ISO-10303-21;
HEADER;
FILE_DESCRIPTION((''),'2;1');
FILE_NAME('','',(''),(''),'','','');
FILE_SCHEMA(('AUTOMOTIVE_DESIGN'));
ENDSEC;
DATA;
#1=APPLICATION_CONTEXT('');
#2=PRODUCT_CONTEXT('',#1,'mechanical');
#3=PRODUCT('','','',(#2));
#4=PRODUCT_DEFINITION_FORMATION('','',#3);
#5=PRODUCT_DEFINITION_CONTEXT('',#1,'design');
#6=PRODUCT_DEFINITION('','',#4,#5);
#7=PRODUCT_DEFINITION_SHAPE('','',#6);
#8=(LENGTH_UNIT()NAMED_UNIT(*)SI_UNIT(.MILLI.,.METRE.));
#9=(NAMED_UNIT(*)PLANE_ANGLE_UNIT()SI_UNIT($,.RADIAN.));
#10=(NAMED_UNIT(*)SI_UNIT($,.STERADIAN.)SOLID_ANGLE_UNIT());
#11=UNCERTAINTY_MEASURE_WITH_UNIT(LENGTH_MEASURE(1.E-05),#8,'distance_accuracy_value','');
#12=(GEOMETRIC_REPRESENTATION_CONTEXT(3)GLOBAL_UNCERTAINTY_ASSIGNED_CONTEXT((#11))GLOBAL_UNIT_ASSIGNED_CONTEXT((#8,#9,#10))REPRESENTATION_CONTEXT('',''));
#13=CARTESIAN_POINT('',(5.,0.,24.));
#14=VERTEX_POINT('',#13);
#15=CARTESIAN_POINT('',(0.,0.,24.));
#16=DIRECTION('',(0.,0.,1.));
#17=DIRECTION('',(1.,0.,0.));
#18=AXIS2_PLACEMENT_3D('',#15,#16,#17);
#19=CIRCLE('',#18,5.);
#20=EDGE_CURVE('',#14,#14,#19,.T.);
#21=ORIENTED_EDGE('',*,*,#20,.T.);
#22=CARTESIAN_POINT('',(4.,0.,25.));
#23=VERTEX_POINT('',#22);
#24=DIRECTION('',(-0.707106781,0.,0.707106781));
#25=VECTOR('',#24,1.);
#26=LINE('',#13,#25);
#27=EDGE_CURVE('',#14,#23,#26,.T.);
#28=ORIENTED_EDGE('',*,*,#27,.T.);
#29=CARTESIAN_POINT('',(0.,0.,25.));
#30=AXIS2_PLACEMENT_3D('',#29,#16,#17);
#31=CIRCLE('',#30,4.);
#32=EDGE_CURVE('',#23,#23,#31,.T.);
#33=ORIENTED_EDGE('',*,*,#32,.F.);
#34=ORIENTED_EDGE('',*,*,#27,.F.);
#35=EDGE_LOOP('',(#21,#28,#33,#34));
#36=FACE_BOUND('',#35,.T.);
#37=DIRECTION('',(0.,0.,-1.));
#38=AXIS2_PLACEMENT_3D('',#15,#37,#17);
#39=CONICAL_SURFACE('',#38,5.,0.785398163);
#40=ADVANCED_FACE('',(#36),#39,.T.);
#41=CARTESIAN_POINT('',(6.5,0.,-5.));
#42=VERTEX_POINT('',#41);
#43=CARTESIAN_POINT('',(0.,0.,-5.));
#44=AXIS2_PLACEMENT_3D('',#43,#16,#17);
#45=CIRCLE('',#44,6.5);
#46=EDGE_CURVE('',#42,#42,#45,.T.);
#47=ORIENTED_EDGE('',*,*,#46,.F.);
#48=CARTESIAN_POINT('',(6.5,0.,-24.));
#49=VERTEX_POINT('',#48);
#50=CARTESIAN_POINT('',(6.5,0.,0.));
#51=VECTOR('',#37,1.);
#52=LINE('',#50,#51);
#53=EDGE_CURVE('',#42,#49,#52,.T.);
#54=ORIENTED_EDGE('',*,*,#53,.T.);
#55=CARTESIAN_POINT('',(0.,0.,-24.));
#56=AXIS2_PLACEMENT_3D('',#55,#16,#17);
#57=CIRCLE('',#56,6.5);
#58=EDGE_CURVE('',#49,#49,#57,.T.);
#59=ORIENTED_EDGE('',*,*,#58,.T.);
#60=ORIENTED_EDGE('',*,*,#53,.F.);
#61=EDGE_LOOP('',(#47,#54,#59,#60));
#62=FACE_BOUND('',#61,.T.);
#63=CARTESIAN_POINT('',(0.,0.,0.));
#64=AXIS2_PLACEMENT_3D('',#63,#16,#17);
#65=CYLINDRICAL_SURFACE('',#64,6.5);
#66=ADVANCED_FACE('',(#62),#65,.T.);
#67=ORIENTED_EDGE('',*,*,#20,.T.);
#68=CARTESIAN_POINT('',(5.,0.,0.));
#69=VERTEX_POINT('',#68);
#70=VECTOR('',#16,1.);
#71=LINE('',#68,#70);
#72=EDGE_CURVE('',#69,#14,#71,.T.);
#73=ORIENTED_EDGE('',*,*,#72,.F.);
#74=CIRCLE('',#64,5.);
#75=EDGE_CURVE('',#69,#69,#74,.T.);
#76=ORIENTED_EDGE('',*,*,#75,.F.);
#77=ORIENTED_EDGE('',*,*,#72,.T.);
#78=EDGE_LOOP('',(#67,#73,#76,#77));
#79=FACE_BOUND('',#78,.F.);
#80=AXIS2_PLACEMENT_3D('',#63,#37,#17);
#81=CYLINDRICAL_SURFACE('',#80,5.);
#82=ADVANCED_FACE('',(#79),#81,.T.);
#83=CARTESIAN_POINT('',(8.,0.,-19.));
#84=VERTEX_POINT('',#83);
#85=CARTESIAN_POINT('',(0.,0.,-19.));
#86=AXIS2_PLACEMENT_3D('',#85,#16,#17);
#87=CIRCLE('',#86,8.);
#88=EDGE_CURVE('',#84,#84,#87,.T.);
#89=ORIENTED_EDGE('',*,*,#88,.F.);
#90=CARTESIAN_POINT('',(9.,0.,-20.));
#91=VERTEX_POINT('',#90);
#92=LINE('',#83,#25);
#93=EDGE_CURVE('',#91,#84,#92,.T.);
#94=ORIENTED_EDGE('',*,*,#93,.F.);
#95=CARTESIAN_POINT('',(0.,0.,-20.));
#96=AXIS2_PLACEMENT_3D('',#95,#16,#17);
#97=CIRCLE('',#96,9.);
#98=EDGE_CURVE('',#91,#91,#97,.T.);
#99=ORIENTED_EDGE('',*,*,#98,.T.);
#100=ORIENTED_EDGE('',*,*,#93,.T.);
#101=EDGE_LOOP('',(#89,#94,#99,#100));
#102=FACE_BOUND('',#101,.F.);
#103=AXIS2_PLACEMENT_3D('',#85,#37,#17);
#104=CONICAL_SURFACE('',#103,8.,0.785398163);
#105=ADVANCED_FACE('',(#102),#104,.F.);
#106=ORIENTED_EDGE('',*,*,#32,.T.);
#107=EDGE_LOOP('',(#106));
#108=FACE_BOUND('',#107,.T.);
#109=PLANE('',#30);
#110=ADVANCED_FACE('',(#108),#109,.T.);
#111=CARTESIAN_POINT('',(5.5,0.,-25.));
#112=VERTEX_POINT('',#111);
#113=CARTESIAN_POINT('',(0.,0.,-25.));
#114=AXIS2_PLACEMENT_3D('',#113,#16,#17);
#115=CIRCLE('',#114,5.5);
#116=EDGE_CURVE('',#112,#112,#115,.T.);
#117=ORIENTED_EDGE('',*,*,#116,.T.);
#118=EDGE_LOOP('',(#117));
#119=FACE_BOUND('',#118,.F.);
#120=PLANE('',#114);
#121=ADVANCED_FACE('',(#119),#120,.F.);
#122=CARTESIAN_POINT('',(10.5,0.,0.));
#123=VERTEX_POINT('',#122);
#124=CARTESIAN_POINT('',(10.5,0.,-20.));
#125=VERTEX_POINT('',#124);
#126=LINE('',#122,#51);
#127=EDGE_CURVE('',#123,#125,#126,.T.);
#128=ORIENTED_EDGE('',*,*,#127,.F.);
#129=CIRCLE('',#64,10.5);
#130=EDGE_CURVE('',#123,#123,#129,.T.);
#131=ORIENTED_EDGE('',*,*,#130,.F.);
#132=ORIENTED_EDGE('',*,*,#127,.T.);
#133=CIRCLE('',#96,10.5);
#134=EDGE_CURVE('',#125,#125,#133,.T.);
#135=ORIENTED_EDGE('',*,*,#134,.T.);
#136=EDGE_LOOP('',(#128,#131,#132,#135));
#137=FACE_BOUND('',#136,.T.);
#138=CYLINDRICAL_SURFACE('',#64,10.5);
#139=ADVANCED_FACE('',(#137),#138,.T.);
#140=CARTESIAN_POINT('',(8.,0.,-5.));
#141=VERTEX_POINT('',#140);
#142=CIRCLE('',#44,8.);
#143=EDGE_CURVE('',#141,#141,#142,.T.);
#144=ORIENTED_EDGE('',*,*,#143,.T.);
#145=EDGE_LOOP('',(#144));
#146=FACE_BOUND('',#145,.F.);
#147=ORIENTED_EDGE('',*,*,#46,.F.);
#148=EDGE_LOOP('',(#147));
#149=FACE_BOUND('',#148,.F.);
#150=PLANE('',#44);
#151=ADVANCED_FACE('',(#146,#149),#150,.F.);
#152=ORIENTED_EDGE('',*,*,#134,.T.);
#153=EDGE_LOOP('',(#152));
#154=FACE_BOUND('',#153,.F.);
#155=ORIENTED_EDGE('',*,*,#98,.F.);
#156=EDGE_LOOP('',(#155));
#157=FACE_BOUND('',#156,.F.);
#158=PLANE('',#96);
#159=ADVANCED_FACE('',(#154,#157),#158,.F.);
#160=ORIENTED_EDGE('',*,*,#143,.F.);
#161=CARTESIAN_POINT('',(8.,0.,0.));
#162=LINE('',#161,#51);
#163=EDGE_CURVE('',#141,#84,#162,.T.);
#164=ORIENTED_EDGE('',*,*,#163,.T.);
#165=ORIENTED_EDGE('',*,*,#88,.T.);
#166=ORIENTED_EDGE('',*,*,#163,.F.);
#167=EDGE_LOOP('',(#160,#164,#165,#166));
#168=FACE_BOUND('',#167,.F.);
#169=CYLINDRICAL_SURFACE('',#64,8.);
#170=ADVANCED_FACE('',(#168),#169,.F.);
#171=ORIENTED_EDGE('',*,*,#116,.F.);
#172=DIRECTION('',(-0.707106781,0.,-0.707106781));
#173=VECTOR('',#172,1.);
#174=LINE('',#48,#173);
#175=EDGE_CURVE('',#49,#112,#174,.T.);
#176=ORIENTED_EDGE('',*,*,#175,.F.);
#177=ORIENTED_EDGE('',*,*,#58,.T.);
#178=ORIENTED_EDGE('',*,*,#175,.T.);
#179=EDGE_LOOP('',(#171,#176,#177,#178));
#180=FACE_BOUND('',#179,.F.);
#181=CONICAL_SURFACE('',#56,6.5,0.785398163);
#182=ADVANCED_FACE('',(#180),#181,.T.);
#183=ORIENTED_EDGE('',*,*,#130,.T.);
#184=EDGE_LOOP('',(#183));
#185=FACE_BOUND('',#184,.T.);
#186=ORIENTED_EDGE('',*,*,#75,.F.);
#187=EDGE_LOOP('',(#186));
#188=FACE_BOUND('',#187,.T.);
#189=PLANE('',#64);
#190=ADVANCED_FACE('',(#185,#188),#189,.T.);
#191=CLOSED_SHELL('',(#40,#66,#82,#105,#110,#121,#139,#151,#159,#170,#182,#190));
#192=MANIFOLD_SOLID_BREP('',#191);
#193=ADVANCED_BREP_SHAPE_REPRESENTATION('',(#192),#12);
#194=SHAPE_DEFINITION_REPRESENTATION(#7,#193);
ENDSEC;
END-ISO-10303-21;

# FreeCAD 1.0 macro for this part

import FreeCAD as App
import Part
import Sketcher


def edges_at(feature, points):
    """Names of the edges that pass closest to the given points."""
    edges = feature.Shape.Edges
    near = lambda p: min(range(len(edges)), key=lambda i: edges[i].distToShape(Part.Vertex(*p))[0])
    return sorted({f"Edge{near(p) + 1}" for p in points})

doc = App.newDocument("Part")
params = doc.addObject("Spreadsheet::Sheet", "Params")
for row, (alias, value) in enumerate([
    ("sketch1_diameter", "10 mm"),
    ("pad1_length", "25 mm"),
    ("sketch2_diameter", "13 mm"),
    ("pad2_length", "25 mm"),
    ("sketch3_diameter", "16 mm"),
    ("sketch3_diameter2", "13 mm"),
    ("pad3_length", "5 mm"),
    ("sketch4_diameter", "21 mm"),
    ("sketch4_diameter2", "16 mm"),
    ("pad4_length", "20 mm"),
    ("chamfer_size", "1 mm"),
], start=1):
    params.set(f"A{row}", alias)
    params.set(f"B{row}", "=" + value)
    params.setAlias(f"B{row}", alias)

body = doc.addObject("PartDesign::Body", "Body")

# Sketch on XY plane
sketch1 = body.newObject("Sketcher::SketchObject", "Sketch")
sketch1.AttachmentSupport = (doc.getObject("XY_Plane"), [""])
sketch1.MapMode = "FlatFace"
sketch1.addGeometry(Part.Circle(App.Vector(0, 0, 0), App.Vector(0, 0, 1), 5), False)
sketch1.addConstraint([
    Sketcher.Constraint("Coincident", 0, 3, -1, 1),
    Sketcher.Constraint("Diameter", 0, 10.0),
])
sketch1.setExpression("Constraints[1]", "Params.sketch1_diameter")
pad1 = body.newObject("PartDesign::Pad", "Pad")
pad1.Profile = sketch1
pad1.setExpression("Length", "Params.pad1_length")

# Sketch on XY plane
sketch2 = body.newObject("Sketcher::SketchObject", "Sketch001")
sketch2.AttachmentSupport = (doc.getObject("XY_Plane"), [""])
sketch2.MapMode = "FlatFace"
sketch2.addGeometry(Part.Circle(App.Vector(0, 0, 0), App.Vector(0, 0, 1), 6), False)
sketch2.addConstraint([
    Sketcher.Constraint("Coincident", 0, 3, -1, 1),
    Sketcher.Constraint("Diameter", 0, 13.0),
])
sketch2.setExpression("Constraints[1]", "Params.sketch2_diameter")
pad2 = body.newObject("PartDesign::Pad", "Pad001")
pad2.Profile = sketch2
pad2.setExpression("Length", "Params.pad2_length")
pad2.Reversed = True

# Sketch on XY plane
sketch3 = body.newObject("Sketcher::SketchObject", "Sketch002")
sketch3.AttachmentSupport = (doc.getObject("XY_Plane"), [""])
sketch3.MapMode = "FlatFace"
sketch3.addGeometry([
    Part.Circle(App.Vector(0, 0, 0), App.Vector(0, 0, 1), 8),
    Part.Circle(App.Vector(0, 0, 0), App.Vector(0, 0, 1), 6),
], False)
sketch3.addConstraint([
    Sketcher.Constraint("Coincident", 0, 3, -1, 1),
    Sketcher.Constraint("Coincident", 1, 3, -1, 1),
    Sketcher.Constraint("Diameter", 0, 16.0),
    Sketcher.Constraint("Diameter", 1, 13.0),
])
sketch3.setExpression("Constraints[2]", "Params.sketch3_diameter")
sketch3.setExpression("Constraints[3]", "Params.sketch3_diameter2")
pad3 = body.newObject("PartDesign::Pad", "Pad002")
pad3.Profile = sketch3
pad3.setExpression("Length", "Params.pad3_length")
pad3.Reversed = True

# Sketch on XY plane
sketch4 = body.newObject("Sketcher::SketchObject", "Sketch003")
sketch4.AttachmentSupport = (doc.getObject("XY_Plane"), [""])
sketch4.MapMode = "FlatFace"
sketch4.addGeometry([
    Part.Circle(App.Vector(0, 0, 0), App.Vector(0, 0, 1), 10),
    Part.Circle(App.Vector(0, 0, 0), App.Vector(0, 0, 1), 8),
], False)
sketch4.addConstraint([
    Sketcher.Constraint("Coincident", 0, 3, -1, 1),
    Sketcher.Constraint("Coincident", 1, 3, -1, 1),
    Sketcher.Constraint("Diameter", 0, 21.0),
    Sketcher.Constraint("Diameter", 1, 16.0),
])
sketch4.setExpression("Constraints[2]", "Params.sketch4_diameter")
sketch4.setExpression("Constraints[3]", "Params.sketch4_diameter2")
pad4 = body.newObject("PartDesign::Pad", "Pad003")
pad4.Profile = sketch4
pad4.setExpression("Length", "Params.pad4_length")
pad4.Reversed = True
doc.recompute()

chamfer = body.newObject("PartDesign::Chamfer", "Chamfer")
chamfer.Base = (pad4, edges_at(pad4, [(-8, 0, -20), (-6.5, 0, -25), (-5, 0, 25)]))
chamfer.setExpression("Size", "Params.chamfer_size")

doc.recompute()
